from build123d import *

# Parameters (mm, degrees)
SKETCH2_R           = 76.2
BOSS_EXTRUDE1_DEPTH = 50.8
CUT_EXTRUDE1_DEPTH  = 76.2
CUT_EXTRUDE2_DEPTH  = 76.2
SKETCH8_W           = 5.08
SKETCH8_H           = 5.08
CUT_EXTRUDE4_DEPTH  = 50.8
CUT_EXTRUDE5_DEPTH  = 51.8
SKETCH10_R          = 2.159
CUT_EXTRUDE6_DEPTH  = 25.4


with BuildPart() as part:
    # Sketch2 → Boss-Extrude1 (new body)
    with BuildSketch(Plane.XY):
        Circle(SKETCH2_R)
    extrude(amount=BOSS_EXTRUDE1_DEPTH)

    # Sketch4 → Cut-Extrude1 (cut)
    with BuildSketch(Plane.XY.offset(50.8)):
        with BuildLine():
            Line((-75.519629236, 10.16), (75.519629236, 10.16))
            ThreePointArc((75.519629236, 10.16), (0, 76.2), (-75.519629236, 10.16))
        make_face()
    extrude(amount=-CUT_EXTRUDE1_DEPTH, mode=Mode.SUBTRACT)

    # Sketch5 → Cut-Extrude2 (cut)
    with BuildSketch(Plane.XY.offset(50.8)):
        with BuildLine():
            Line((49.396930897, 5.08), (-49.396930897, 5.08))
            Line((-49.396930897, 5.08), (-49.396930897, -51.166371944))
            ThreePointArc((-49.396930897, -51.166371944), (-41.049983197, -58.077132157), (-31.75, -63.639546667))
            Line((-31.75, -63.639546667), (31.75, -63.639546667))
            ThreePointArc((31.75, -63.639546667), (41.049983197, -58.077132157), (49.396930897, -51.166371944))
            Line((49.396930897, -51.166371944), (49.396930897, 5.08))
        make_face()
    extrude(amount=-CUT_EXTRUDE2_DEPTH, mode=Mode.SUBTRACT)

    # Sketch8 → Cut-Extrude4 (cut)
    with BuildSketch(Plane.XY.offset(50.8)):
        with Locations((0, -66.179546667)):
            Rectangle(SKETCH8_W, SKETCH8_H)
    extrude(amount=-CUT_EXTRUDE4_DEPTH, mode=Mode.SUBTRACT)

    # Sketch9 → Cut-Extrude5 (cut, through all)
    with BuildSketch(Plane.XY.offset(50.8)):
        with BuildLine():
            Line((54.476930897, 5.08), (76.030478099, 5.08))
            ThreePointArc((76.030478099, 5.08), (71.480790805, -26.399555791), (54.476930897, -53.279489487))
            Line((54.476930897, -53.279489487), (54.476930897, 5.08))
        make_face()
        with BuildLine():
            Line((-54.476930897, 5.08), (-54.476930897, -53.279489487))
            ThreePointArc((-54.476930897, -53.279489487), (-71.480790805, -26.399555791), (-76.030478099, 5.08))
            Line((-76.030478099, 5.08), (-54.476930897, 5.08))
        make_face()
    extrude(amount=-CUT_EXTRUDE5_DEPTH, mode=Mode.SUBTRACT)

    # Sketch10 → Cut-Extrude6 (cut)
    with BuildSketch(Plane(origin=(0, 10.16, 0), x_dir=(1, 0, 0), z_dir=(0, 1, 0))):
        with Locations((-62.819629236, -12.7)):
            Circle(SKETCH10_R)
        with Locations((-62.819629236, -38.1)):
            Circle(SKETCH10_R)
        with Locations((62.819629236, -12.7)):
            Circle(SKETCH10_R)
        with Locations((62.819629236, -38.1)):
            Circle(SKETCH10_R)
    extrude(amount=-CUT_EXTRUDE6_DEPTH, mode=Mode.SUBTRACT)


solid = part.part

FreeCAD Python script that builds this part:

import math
import FreeCAD as App
import Part
import Sketcher
from FreeCAD import Vector
Q = App.Units.Quantity

doc = App.newDocument("Part")
params = doc.addObject("Spreadsheet::Sheet", "Params")
for row, (alias, value) in enumerate([
    ("sketch1_diameter", "6 in"),
    ("pad1_length", "2 in"),
    ("sketch2_radius", "3 in"),
    ("pocket1_length", "3 in"),
    ("sketch3_radius", "2.8 in"),
    ("sketch3_width", "2.5 in"),
    ("pocket2_length", "3 in"),
    ("sketch4_width", "0.2 in"),
    ("pocket3_length", "2 in"),
    ("sketch5_radius", "3 in"),
    ("sketch6_diameter", "0.17 in"),
    ("pocket5_length", "1 in"),
], start=1):
    params.set(f"A{row}", alias)
    params.set(f"B{row}", "=" + value)
    params.setAlias(f"B{row}", alias)

body = doc.addObject("PartDesign::Body", "Body")

sketch1 = body.newObject("Sketcher::SketchObject", "Sketch")
sketch1.AttachmentSupport = (doc.getObject("XY_Plane"), [""])
sketch1.MapMode = "FlatFace"
sketch1.addGeometry(Part.Circle(Vector(0, 0, 0), Vector(0, 0, 1), 76), False)
sketch1.addConstraint([
    Sketcher.Constraint("Coincident", 0, 3, -1, 1),
    Sketcher.Constraint("Diameter", 0, Q("6 in")),
])
sketch1.setExpression("Constraints[1]", "Params.sketch1_diameter")
pad1 = body.newObject("PartDesign::Pad", "Pad")
pad1.Profile = sketch1
pad1.setExpression("Length", "Params.pad1_length")

sketch2 = body.newObject("Sketcher::SketchObject", "Sketch001")
sketch2.AttachmentSupport = (doc.getObject("XY_Plane"), [""])
sketch2.MapMode = "FlatFace"
sketch2.AttachmentOffset = App.Placement(Vector(0, 0, 2 * 25.4), App.Rotation())
sketch2.addGeometry([
    Part.LineSegment(Vector(-76, 10, 0), Vector(76, 10, 0)),
    Part.ArcOfCircle(Part.Circle(Vector(0, 0, 0), Vector(0, 0, 1), 76), math.radians(8), math.radians(172)),
], False)
sketch2.addConstraint([
    Sketcher.Constraint("Coincident", 0, 1, 1, 2),
    Sketcher.Constraint("Coincident", 1, 1, 0, 2),
    Sketcher.Constraint("Horizontal", 0),
    Sketcher.Constraint("Coincident", 1, 3, -1, 1),
    Sketcher.Constraint("Radius", 1, Q("3 in")),
    Sketcher.Constraint("DistanceY", -1, 1, 0, 1, Q("0.4 in")),
])
sketch2.setExpression("Constraints[4]", "Params.sketch2_radius")
pocket1 = body.newObject("PartDesign::Pocket", "Pocket")
pocket1.Profile = sketch2
pocket1.setExpression("Length", "Params.pocket1_length")

sketch3 = body.newObject("Sketcher::SketchObject", "Sketch002")
sketch3.AttachmentSupport = (doc.getObject("XY_Plane"), [""])
sketch3.MapMode = "FlatFace"
sketch3.AttachmentOffset = App.Placement(Vector(0, 0, 2 * 25.4), App.Rotation())
sketch3.addGeometry([
    Part.LineSegment(Vector(49, 5, 0), Vector(-49, 5, 0)),
    Part.LineSegment(Vector(-49, 5, 0), Vector(-49, -51, 0)),
    Part.ArcOfCircle(Part.Circle(Vector(0, 0, 0), Vector(0, 0, 1), 71), math.radians(-133.99), math.radians(-116.51)),
    Part.LineSegment(Vector(-32, -64, 0), Vector(32, -64, 0)),
    Part.ArcOfCircle(Part.Circle(Vector(0, 0, 0), Vector(0, 0, 1), 71), math.radians(-63.49), math.radians(-46.01)),
    Part.LineSegment(Vector(49, -51, 0), Vector(49, 5, 0)),
], False)
sketch3.addConstraint([
    Sketcher.Constraint("Coincident", 0, 2, 1, 1),
    Sketcher.Constraint("Coincident", 1, 2, 2, 1),
    Sketcher.Constraint("Coincident", 2, 2, 3, 1),
    Sketcher.Constraint("Coincident", 3, 2, 4, 1),
    Sketcher.Constraint("Coincident", 4, 2, 5, 1),
    Sketcher.Constraint("Coincident", 5, 2, 0, 1),
    Sketcher.Constraint("Horizontal", 0),
    Sketcher.Constraint("Vertical", 1),
    Sketcher.Constraint("Horizontal", 3),
    Sketcher.Constraint("Vertical", 5),
    Sketcher.Constraint("Coincident", 2, 3, -1, 1),
    Sketcher.Constraint("Coincident", 4, 3, -1, 1),
    Sketcher.Constraint("Equal", 2, 4),
    Sketcher.Constraint("Horizontal", 1, 2, 4, 2),
    Sketcher.Constraint("Radius", 2, Q("2.8 in")),
    Sketcher.Constraint("DistanceX", 3, 1, 3, 2, Q("2.5 in")),
    Sketcher.Constraint("DistanceY", -1, 1, 0, 2, Q("0.2 in")),
    Sketcher.Constraint("DistanceX", 0, 2, 0, 1, Q("98.793862 mm")),
])
sketch3.setExpression("Constraints[14]", "Params.sketch3_radius")
sketch3.setExpression("Constraints[15]", "Params.sketch3_width")
pocket2 = body.newObject("PartDesign::Pocket", "Pocket001")
pocket2.Profile = sketch3
pocket2.setExpression("Length", "Params.pocket2_length")

sketch4 = body.newObject("Sketcher::SketchObject", "Sketch003")
sketch4.AttachmentSupport = (doc.getObject("XY_Plane"), [""])
sketch4.MapMode = "FlatFace"
sketch4.AttachmentOffset = App.Placement(Vector(0, 0, 2 * 25.4), App.Rotation())
sketch4.addGeometry([
    Part.LineSegment(Vector(-3, -64, 0), Vector(-3, -69, 0)),
    Part.LineSegment(Vector(-3, -69, 0), Vector(3, -69, 0)),
    Part.LineSegment(Vector(3, -69, 0), Vector(3, -64, 0)),
    Part.LineSegment(Vector(3, -64, 0), Vector(-3, -64, 0)),
], False)
sketch4.addConstraint([
    Sketcher.Constraint("Coincident", 0, 2, 1, 1),
    Sketcher.Constraint("Coincident", 1, 2, 2, 1),
    Sketcher.Constraint("Coincident", 2, 2, 3, 1),
    Sketcher.Constraint("Coincident", 3, 2, 0, 1),
    Sketcher.Constraint("Vertical", 0),
    Sketcher.Constraint("Horizontal", 1),
    Sketcher.Constraint("Vertical", 2),
    Sketcher.Constraint("Horizontal", 3),
    Sketcher.Constraint("Equal", 3, 0),
    Sketcher.Constraint("DistanceX", 1, 1, 1, 2, Q("0.2 in")),
    Sketcher.Constraint("DistanceX", 0, 2, -1, 1, Q("0.1 in")),
    Sketcher.Constraint("DistanceY", 0, 2, -1, 1, Q("68.719547 mm")),
])
sketch4.setExpression("Constraints[9]", "Params.sketch4_width")
pocket3 = body.newObject("PartDesign::Pocket", "Pocket002")
pocket3.Profile = sketch4
pocket3.setExpression("Length", "Params.pocket3_length")

sketch5 = body.newObject("Sketcher::SketchObject", "Sketch004")
sketch5.AttachmentSupport = (doc.getObject("XY_Plane"), [""])
sketch5.MapMode = "FlatFace"
sketch5.AttachmentOffset = App.Placement(Vector(0, 0, 2 * 25.4), App.Rotation())
sketch5.addGeometry([
    Part.LineSegment(Vector(76, 5, 0), Vector(54, 5, 0)),
    Part.LineSegment(Vector(54, 5, 0), Vector(54, -53, 0)),
    Part.ArcOfCircle(Part.Circle(Vector(0, 0, 0), Vector(0, 0, 1), 76), math.radians(-44), math.radians(4)),
    Part.LineSegment(Vector(-54, -53, 0), Vector(-54, 5, 0)),
    Part.LineSegment(Vector(-54, 5, 0), Vector(-76, 5, 0)),
    Part.ArcOfCircle(Part.Circle(Vector(0, 0, 0), Vector(0, 0, 1), 76), math.radians(176), math.radians(224)),
], False)
sketch5.addConstraint([
    Sketcher.Constraint("Coincident", 0, 2, 1, 1),
    Sketcher.Constraint("Coincident", 1, 2, 2, 1),
    Sketcher.Constraint("Coincident", 2, 2, 0, 1),
    Sketcher.Constraint("Coincident", 3, 2, 4, 1),
    Sketcher.Constraint("Coincident", 4, 2, 5, 1),
    Sketcher.Constraint("Coincident", 5, 2, 3, 1),
    Sketcher.Constraint("Horizontal", 0),
    Sketcher.Constraint("Vertical", 1),
    Sketcher.Constraint("Vertical", 3),
    Sketcher.Constraint("Horizontal", 4),
    Sketcher.Constraint("Coincident", 2, 3, -1, 1),
    Sketcher.Constraint("Coincident", 5, 3, -1, 1),
    Sketcher.Constraint("Equal", 2, 5),
    Sketcher.Constraint("Symmetric", 0, 2, 3, 2, -2),
    Sketcher.Constraint("Radius", 2, Q("3 in")),
    Sketcher.Constraint("DistanceY", -1, 1, 0, 2, Q("0.2 in")),
    Sketcher.Constraint("DistanceY", 1, 2, 1, 1, Q("58.359489 mm")),
])
sketch5.setExpression("Constraints[14]", "Params.sketch5_radius")
pocket4 = body.newObject("PartDesign::Pocket", "Pocket003")
pocket4.Profile = sketch5
pocket4.Type = "ThroughAll"

sketch6 = body.newObject("Sketcher::SketchObject", "Sketch005")
sketch6.AttachmentSupport = (doc.getObject("XZ_Plane"), [""])
sketch6.MapMode = "FlatFace"
sketch6.AttachmentOffset = App.Placement(Vector(0, 0, -0.4 * 25.4), App.Rotation())
sketch6.addGeometry([
    Part.Circle(Vector(-62.8, 12.7, 0), Vector(0, 0, 1), 2.2),
    Part.Circle(Vector(-62.8, 38.1, 0), Vector(0, 0, 1), 2.2),
    Part.Circle(Vector(62.8, 12.7, 0), Vector(0, 0, 1), 2.2),
    Part.Circle(Vector(62.8, 38.1, 0), Vector(0, 0, 1), 2.2),
], False)
sketch6.addConstraint([
    Sketcher.Constraint("Equal", 0, 1),
    Sketcher.Constraint("Equal", 1, 2),
    Sketcher.Constraint("Equal", 2, 3),
    Sketcher.Constraint("Symmetric", 0, 3, 2, 3, -2),
    Sketcher.Constraint("Symmetric", 1, 3, 3, 3, -2),
    Sketcher.Constraint("Vertical", 0, 3, 1, 3),
    Sketcher.Constraint("Diameter", 0, Q("0.17 in")),
    Sketcher.Constraint("DistanceY", 0, 3, 1, 3, Q("1 in")),
    Sketcher.Constraint("DistanceY", -1, 1, 0, 3, Q("0.5 in")),
    Sketcher.Constraint("DistanceX", 0, 3, -1, 1, Q("62.819629 mm")),
])
sketch6.setExpression("Constraints[6]", "Params.sketch6_diameter")
pocket5 = body.newObject("PartDesign::Pocket", "Pocket004")
pocket5.Profile = sketch6
pocket5.setExpression("Length", "Params.pocket5_length")
pocket5.Reversed = True

doc.recompute()
